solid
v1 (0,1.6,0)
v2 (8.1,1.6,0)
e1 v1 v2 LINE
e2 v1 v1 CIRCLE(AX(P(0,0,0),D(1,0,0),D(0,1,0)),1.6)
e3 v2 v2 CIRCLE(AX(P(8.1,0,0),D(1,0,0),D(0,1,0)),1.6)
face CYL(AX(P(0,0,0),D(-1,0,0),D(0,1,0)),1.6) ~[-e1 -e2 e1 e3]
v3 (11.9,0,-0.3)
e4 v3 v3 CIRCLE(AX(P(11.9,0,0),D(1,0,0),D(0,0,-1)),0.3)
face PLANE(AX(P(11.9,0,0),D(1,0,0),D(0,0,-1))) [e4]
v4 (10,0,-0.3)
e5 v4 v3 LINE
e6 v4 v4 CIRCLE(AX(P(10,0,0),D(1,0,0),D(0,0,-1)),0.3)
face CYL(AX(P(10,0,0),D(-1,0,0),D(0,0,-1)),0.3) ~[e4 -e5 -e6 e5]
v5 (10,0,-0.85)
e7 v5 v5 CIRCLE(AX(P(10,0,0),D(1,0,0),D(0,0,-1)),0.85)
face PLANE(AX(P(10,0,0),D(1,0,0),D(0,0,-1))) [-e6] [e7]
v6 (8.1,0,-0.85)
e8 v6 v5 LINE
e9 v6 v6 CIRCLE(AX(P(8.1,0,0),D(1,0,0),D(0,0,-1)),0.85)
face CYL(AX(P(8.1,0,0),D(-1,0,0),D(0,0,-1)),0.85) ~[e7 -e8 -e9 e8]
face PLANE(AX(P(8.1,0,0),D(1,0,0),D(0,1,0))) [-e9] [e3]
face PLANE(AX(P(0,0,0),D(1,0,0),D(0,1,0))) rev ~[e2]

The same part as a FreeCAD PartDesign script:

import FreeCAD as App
import Part
import Sketcher

doc = App.newDocument("Part")
body = doc.addObject("PartDesign::Body", "Body")

# Sketch on YZ plane
sketch1 = doc.addObject("Sketcher::SketchObject", "Sketch")
body.addObject(sketch1)
sketch1.AttachmentSupport = (doc.YZ_Plane, [""])
sketch1.MapMode = "FlatFace"
sketch1.addGeometry(Part.Circle(App.Vector(0, 0, 0), App.Vector(0, 0, 1), 1.6), False)
sketch1.addConstraint(Sketcher.Constraint("Coincident", 0, 3, -1, 1))
sketch1.addConstraint(Sketcher.Constraint("Diameter", 0, 3.2))
pad1 = doc.addObject("PartDesign::Pad", "Pad")
body.addObject(pad1)
pad1.Profile = sketch1
pad1.Length = 8.1

# Sketch on YZ plane
sketch2 = doc.addObject("Sketcher::SketchObject", "Sketch001")
body.addObject(sketch2)
sketch2.AttachmentSupport = (doc.YZ_Plane, [""])
sketch2.MapMode = "FlatFace"
sketch2.AttachmentOffset = App.Placement(App.Vector(0, 0, 8.1), App.Rotation())
sketch2.addGeometry(Part.Circle(App.Vector(0, 0, 0), App.Vector(0, 0, 1), 0.8), False)
sketch2.addConstraint(Sketcher.Constraint("Coincident", 0, 3, -1, 1))
sketch2.addConstraint(Sketcher.Constraint("Diameter", 0, 1.7))
pad2 = doc.addObject("PartDesign::Pad", "Pad001")
body.addObject(pad2)
pad2.Profile = sketch2
pad2.Length = 1.9

# Sketch on YZ plane
sketch3 = doc.addObject("Sketcher::SketchObject", "Sketch002")
body.addObject(sketch3)
sketch3.AttachmentSupport = (doc.YZ_Plane, [""])
sketch3.MapMode = "FlatFace"
sketch3.AttachmentOffset = App.Placement(App.Vector(0, 0, 10), App.Rotation())
sketch3.addGeometry(Part.Circle(App.Vector(0, 0, 0), App.Vector(0, 0, 1), 0.3), False)
sketch3.addConstraint(Sketcher.Constraint("Coincident", 0, 3, -1, 1))
sketch3.addConstraint(Sketcher.Constraint("Diameter", 0, 0.6))
pad3 = doc.addObject("PartDesign::Pad", "Pad002")
body.addObject(pad3)
pad3.Profile = sketch3
pad3.Length = 1.9

doc.recompute()
